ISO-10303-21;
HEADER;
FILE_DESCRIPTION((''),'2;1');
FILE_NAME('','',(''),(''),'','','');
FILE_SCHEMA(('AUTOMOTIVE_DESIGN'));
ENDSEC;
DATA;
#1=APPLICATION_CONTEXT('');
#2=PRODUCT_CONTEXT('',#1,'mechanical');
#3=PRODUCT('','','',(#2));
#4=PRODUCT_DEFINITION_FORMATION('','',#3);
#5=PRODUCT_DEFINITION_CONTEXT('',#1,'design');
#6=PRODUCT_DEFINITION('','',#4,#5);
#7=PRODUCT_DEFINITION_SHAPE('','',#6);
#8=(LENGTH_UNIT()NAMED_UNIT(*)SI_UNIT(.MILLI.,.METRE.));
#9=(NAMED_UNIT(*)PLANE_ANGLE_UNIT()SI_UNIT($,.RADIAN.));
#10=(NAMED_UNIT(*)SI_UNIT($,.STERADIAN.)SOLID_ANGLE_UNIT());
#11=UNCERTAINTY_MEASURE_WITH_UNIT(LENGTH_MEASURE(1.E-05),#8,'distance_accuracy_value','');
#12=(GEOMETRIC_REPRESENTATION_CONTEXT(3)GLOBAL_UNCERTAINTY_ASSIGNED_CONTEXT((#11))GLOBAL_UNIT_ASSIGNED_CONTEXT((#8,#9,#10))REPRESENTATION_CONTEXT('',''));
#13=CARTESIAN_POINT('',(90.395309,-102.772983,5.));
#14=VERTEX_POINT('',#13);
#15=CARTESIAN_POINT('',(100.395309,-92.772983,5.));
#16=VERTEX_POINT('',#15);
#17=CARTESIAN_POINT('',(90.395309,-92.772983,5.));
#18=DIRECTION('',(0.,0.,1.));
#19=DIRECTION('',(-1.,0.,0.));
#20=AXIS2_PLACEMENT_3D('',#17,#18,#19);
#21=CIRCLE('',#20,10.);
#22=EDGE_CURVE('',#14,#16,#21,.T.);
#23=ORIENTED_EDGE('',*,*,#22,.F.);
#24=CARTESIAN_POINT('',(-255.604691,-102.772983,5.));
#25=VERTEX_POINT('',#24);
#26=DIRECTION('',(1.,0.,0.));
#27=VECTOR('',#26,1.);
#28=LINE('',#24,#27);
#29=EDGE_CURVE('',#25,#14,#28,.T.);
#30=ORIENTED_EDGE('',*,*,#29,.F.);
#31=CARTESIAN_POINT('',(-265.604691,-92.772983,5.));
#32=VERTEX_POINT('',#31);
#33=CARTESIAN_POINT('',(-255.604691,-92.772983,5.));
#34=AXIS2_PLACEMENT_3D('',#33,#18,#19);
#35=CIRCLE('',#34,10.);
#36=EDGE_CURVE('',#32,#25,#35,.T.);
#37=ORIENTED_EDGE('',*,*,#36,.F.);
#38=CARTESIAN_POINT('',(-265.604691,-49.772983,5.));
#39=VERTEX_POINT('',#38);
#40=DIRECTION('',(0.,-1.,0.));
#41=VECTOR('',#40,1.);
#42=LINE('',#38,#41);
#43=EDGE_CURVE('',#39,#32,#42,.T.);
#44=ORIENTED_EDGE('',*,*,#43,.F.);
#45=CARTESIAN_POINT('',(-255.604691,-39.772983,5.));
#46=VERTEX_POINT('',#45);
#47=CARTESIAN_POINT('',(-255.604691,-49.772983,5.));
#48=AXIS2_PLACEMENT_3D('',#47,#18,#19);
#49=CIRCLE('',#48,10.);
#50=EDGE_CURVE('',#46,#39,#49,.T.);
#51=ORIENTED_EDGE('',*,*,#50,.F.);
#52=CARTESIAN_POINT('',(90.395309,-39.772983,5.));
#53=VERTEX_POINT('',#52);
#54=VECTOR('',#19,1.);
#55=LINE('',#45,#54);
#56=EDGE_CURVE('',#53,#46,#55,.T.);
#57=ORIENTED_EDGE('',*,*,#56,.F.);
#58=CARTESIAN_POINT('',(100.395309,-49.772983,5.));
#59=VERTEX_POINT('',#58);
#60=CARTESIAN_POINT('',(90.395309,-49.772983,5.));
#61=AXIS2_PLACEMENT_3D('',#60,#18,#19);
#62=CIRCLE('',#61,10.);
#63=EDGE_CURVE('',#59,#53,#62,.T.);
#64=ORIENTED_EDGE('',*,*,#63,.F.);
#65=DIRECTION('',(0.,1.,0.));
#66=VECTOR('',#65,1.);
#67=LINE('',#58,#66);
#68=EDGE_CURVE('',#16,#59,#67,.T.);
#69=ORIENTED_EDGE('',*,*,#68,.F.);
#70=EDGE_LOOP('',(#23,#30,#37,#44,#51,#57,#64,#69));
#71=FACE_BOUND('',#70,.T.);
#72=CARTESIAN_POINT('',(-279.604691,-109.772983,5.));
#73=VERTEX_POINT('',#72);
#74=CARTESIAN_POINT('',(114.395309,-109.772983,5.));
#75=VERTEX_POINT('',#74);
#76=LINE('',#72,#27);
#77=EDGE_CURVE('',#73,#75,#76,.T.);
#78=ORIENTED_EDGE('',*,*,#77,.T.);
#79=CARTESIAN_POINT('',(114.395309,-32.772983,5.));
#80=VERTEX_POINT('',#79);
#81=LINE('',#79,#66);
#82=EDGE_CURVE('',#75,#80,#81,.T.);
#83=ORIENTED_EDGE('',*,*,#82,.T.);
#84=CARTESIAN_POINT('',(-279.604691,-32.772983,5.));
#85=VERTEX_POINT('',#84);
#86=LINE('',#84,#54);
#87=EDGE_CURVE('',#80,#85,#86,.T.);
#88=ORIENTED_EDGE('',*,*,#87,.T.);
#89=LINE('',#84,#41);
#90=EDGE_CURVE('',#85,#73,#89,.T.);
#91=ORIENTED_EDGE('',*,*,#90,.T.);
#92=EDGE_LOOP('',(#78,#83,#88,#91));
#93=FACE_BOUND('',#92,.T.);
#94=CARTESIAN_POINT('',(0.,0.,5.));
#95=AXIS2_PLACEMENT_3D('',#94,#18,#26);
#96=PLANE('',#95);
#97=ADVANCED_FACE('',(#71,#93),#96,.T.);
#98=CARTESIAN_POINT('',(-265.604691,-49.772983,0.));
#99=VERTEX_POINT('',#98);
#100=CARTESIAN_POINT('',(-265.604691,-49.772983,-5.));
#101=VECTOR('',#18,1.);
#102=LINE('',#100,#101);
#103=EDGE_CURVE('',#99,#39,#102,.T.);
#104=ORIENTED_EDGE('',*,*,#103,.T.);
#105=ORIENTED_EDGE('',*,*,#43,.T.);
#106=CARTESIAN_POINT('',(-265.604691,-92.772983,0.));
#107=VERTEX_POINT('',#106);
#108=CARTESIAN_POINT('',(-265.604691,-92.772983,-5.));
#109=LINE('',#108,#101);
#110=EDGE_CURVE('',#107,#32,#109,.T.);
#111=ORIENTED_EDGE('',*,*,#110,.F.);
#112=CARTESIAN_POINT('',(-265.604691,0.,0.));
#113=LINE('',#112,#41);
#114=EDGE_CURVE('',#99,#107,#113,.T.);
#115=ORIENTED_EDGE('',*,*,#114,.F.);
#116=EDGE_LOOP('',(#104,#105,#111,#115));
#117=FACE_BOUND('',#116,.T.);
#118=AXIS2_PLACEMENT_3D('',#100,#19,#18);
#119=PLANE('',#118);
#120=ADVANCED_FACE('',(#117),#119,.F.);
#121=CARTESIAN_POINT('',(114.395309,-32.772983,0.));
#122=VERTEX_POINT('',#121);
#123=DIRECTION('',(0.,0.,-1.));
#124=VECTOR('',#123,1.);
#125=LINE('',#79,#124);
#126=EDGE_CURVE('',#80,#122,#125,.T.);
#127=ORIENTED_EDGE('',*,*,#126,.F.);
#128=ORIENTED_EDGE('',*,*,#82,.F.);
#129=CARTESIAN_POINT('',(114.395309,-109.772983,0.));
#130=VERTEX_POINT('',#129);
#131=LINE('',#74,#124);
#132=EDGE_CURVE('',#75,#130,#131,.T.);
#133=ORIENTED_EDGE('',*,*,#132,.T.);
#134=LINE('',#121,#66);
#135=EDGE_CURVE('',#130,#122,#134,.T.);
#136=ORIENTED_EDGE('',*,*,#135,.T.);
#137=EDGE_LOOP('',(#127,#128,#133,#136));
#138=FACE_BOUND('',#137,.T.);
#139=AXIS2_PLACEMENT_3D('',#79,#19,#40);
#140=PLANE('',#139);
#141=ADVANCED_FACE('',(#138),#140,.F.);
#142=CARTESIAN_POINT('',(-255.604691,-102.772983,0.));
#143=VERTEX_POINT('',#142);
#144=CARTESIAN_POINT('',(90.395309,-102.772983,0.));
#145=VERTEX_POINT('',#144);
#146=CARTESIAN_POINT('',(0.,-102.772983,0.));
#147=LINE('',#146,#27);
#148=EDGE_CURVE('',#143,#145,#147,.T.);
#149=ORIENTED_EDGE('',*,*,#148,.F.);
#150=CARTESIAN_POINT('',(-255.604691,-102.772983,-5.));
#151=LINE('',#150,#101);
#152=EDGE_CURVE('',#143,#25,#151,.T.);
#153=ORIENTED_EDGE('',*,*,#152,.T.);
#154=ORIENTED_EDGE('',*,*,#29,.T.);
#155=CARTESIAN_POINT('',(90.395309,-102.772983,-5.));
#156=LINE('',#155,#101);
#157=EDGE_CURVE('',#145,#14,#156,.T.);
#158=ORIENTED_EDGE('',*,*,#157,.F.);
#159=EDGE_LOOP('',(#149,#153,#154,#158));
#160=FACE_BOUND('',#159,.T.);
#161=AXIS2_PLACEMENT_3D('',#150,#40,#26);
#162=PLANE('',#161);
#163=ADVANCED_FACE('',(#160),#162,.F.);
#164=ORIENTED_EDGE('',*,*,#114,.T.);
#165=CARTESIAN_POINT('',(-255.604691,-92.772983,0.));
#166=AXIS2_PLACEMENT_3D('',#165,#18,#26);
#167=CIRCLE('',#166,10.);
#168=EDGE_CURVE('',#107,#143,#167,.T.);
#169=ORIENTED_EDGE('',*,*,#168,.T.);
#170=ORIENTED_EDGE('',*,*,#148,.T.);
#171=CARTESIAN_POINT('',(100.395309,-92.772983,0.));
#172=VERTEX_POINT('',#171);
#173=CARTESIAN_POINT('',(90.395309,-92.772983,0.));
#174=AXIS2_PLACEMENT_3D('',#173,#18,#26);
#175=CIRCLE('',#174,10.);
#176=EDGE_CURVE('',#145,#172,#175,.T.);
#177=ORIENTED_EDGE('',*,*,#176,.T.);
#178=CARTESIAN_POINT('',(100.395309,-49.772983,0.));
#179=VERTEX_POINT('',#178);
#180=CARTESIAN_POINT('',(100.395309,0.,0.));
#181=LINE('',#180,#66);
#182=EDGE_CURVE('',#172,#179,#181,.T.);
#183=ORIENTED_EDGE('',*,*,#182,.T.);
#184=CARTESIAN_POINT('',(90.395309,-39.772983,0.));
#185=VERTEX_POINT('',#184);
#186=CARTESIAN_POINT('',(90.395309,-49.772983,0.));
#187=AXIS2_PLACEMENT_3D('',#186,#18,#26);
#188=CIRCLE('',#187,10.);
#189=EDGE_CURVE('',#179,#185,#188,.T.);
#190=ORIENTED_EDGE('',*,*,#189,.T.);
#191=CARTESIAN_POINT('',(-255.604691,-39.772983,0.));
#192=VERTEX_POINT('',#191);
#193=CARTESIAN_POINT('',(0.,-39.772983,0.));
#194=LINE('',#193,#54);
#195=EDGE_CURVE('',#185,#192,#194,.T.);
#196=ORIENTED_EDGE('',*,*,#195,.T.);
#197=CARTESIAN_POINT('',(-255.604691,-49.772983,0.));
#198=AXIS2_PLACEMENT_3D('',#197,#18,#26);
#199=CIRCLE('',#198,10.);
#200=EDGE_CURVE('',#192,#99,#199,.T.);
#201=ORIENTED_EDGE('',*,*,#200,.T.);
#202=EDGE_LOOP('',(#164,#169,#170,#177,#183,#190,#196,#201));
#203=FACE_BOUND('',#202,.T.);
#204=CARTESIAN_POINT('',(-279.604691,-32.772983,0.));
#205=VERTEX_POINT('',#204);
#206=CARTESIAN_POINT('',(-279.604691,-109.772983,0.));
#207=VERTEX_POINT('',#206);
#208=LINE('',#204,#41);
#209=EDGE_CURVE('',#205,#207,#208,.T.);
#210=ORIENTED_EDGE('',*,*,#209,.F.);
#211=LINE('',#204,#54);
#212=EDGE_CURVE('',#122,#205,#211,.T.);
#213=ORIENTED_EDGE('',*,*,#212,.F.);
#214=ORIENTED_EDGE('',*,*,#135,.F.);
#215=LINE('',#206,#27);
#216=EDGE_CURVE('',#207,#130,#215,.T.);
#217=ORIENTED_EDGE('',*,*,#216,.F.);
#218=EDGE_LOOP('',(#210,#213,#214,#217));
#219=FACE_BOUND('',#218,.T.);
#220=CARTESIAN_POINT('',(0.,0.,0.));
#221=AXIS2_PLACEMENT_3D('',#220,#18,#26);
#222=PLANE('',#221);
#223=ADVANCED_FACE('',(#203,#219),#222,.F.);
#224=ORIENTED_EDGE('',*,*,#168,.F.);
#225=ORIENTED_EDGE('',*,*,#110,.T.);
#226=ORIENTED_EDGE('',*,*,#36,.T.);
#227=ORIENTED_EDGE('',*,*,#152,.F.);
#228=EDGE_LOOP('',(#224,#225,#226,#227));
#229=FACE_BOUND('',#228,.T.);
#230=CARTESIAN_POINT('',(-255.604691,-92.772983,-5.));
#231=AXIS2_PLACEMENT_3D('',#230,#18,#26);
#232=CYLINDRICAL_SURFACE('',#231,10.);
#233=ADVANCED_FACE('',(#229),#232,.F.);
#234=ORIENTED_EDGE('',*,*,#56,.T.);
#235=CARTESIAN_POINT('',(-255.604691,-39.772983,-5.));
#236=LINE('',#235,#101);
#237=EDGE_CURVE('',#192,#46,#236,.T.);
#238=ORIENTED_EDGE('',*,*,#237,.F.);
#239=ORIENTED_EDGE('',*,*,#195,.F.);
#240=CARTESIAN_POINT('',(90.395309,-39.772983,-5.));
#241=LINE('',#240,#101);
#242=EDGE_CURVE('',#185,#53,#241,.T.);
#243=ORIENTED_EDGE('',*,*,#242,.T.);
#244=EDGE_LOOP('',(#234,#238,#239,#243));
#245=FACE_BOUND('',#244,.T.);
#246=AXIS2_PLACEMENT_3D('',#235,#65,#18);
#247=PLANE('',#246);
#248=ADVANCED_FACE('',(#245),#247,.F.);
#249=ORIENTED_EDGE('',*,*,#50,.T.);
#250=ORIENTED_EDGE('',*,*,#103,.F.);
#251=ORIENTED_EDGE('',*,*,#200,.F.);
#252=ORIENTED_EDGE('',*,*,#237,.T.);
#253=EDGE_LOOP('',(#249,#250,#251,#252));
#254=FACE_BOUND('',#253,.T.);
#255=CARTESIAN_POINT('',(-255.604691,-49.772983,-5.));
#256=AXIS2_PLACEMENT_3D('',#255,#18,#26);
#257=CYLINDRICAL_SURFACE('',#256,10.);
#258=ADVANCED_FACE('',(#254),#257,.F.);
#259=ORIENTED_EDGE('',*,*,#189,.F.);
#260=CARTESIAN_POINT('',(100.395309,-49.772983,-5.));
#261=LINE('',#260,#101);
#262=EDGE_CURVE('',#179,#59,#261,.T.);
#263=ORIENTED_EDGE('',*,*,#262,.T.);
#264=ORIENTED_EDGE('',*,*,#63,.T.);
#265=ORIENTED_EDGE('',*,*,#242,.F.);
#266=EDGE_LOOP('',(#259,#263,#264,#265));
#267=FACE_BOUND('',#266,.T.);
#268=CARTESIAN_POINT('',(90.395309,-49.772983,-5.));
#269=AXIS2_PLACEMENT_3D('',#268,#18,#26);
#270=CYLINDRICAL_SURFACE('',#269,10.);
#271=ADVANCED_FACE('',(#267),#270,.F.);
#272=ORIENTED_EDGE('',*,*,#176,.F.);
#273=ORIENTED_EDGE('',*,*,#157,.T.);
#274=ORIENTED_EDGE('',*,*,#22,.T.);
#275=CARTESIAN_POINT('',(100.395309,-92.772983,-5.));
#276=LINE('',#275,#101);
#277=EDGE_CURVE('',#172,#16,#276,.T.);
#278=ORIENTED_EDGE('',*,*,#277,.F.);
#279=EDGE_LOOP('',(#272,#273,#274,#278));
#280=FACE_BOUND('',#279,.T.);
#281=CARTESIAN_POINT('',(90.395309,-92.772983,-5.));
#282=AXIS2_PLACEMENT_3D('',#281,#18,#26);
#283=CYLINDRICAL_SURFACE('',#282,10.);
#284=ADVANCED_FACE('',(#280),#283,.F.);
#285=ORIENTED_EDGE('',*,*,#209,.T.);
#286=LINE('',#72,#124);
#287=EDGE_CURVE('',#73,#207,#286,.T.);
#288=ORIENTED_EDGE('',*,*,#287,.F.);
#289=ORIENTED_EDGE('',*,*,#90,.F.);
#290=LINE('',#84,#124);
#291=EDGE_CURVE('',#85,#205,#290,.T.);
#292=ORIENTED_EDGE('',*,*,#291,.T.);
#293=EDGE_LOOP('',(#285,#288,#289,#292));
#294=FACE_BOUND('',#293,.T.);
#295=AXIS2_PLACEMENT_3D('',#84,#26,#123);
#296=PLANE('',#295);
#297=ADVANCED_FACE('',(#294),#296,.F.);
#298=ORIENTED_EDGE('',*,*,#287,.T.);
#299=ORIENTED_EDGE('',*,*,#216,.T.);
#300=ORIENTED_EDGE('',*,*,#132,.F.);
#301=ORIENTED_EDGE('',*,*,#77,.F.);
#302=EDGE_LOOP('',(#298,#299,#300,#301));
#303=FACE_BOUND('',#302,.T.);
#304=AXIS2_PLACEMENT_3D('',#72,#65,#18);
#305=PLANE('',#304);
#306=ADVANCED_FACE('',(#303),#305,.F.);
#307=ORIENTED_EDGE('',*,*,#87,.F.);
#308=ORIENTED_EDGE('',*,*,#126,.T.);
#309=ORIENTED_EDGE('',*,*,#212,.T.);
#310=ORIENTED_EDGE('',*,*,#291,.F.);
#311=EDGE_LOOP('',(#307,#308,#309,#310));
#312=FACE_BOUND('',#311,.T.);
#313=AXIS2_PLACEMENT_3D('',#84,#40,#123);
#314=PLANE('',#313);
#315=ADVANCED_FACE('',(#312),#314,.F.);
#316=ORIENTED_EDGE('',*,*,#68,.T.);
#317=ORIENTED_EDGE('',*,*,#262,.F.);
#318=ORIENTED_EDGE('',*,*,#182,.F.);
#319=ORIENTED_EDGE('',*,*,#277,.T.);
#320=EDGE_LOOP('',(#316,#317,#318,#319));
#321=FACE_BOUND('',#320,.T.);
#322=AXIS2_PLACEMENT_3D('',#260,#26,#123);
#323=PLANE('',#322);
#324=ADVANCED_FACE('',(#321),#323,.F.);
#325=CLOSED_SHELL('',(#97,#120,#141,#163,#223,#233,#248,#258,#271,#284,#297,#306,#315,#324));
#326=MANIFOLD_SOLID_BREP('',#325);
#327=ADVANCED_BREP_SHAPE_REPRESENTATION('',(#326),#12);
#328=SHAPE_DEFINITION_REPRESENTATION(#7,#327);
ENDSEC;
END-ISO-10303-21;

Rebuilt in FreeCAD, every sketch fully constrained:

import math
import FreeCAD as App
import Part
import Sketcher
from FreeCAD import Vector

doc = App.newDocument("Part")
body = doc.addObject("PartDesign::Body", "Body")

sketch1 = doc.addObject("Sketcher::SketchObject", "Sketch")
body.addObject(sketch1)
sketch1.AttachmentSupport = (doc.XY_Plane, [""])
sketch1.MapMode = "FlatFace"
sketch1.addGeometry([
    Part.LineSegment(Vector(-280, -33, 0), Vector(-280, -110, 0)),
    Part.LineSegment(Vector(-280, -110, 0), Vector(114, -110, 0)),
    Part.LineSegment(Vector(114, -110, 0), Vector(114, -33, 0)),
    Part.LineSegment(Vector(114, -33, 0), Vector(-280, -33, 0)),
], False)
sketch1.addConstraint([
    Sketcher.Constraint("Coincident", 0, 2, 1, 1),
    Sketcher.Constraint("Coincident", 1, 2, 2, 1),
    Sketcher.Constraint("Coincident", 2, 2, 3, 1),
    Sketcher.Constraint("Coincident", 3, 2, 0, 1),
    Sketcher.Constraint("Vertical", 0),
    Sketcher.Constraint("Horizontal", 1),
    Sketcher.Constraint("Vertical", 2),
    Sketcher.Constraint("Horizontal", 3),
    Sketcher.Constraint("DistanceX", 1, 1, 1, 2, 394.0),
    Sketcher.Constraint("DistanceY", 0, 2, 0, 1, 77.0),
    Sketcher.Constraint("DistanceX", 0, 2, -1, 1, 279.604691),
    Sketcher.Constraint("DistanceY", 0, 2, -1, 1, 109.772983),
])
pad1 = doc.addObject("PartDesign::Pad", "Pad")
body.addObject(pad1)
pad1.Profile = sketch1
pad1.Length = 5

sketch2 = doc.addObject("Sketcher::SketchObject", "Sketch001")
body.addObject(sketch2)
sketch2.AttachmentSupport = (doc.XY_Plane, [""])
sketch2.MapMode = "FlatFace"
sketch2.AttachmentOffset = App.Placement(Vector(0, 0, 5), App.Rotation())
sketch2.addGeometry([
    Part.LineSegment(Vector(90, -40, 0), Vector(-256, -40, 0)),
    Part.ArcOfCircle(Part.Circle(Vector(-256, -50, 0), Vector(0, 0, 1), 10), math.radians(90), math.radians(180)),
    Part.LineSegment(Vector(-266, -50, 0), Vector(-266, -93, 0)),
    Part.ArcOfCircle(Part.Circle(Vector(-256, -93, 0), Vector(0, 0, 1), 10), math.radians(180), math.radians(270)),
    Part.LineSegment(Vector(-256, -103, 0), Vector(90, -103, 0)),
    Part.ArcOfCircle(Part.Circle(Vector(90, -93, 0), Vector(0, 0, 1), 10), math.radians(-90), math.radians(0)),
    Part.LineSegment(Vector(100, -93, 0), Vector(100, -50, 0)),
    Part.ArcOfCircle(Part.Circle(Vector(90, -50, 0), Vector(0, 0, 1), 10), math.radians(0), math.radians(90)),
], False)
sketch2.addConstraint([
    Sketcher.Constraint("Tangent", 0, 2, 1, 1),
    Sketcher.Constraint("Tangent", 1, 2, 2, 1),
    Sketcher.Constraint("Tangent", 2, 2, 3, 1),
    Sketcher.Constraint("Tangent", 3, 2, 4, 1),
    Sketcher.Constraint("Tangent", 4, 2, 5, 1),
    Sketcher.Constraint("Tangent", 5, 2, 6, 1),
    Sketcher.Constraint("Tangent", 6, 2, 7, 1),
    Sketcher.Constraint("Tangent", 7, 2, 0, 1),
    Sketcher.Constraint("Horizontal", 0),
    Sketcher.Constraint("Vertical", 2),
    Sketcher.Constraint("Horizontal", 4),
    Sketcher.Constraint("Vertical", 6),
    Sketcher.Constraint("Equal", 1, 3),
    Sketcher.Constraint("Equal", 3, 5),
    Sketcher.Constraint("Equal", 5, 7),
    Sketcher.Constraint("Radius", 1, 10.0),
    Sketcher.Constraint("DistanceX", 0, 2, 0, 1, 346.0),
    Sketcher.Constraint("DistanceY", 2, 2, 2, 1, 43.0),
    Sketcher.Constraint("DistanceX", 1, 3, -1, 1, 255.604691),
    Sketcher.Constraint("DistanceY", 1, 3, -1, 1, 49.772983),
])
pocket1 = doc.addObject("PartDesign::Pocket", "Pocket")
body.addObject(pocket1)
pocket1.Profile = sketch2
pocket1.Length = 10

doc.recompute()
